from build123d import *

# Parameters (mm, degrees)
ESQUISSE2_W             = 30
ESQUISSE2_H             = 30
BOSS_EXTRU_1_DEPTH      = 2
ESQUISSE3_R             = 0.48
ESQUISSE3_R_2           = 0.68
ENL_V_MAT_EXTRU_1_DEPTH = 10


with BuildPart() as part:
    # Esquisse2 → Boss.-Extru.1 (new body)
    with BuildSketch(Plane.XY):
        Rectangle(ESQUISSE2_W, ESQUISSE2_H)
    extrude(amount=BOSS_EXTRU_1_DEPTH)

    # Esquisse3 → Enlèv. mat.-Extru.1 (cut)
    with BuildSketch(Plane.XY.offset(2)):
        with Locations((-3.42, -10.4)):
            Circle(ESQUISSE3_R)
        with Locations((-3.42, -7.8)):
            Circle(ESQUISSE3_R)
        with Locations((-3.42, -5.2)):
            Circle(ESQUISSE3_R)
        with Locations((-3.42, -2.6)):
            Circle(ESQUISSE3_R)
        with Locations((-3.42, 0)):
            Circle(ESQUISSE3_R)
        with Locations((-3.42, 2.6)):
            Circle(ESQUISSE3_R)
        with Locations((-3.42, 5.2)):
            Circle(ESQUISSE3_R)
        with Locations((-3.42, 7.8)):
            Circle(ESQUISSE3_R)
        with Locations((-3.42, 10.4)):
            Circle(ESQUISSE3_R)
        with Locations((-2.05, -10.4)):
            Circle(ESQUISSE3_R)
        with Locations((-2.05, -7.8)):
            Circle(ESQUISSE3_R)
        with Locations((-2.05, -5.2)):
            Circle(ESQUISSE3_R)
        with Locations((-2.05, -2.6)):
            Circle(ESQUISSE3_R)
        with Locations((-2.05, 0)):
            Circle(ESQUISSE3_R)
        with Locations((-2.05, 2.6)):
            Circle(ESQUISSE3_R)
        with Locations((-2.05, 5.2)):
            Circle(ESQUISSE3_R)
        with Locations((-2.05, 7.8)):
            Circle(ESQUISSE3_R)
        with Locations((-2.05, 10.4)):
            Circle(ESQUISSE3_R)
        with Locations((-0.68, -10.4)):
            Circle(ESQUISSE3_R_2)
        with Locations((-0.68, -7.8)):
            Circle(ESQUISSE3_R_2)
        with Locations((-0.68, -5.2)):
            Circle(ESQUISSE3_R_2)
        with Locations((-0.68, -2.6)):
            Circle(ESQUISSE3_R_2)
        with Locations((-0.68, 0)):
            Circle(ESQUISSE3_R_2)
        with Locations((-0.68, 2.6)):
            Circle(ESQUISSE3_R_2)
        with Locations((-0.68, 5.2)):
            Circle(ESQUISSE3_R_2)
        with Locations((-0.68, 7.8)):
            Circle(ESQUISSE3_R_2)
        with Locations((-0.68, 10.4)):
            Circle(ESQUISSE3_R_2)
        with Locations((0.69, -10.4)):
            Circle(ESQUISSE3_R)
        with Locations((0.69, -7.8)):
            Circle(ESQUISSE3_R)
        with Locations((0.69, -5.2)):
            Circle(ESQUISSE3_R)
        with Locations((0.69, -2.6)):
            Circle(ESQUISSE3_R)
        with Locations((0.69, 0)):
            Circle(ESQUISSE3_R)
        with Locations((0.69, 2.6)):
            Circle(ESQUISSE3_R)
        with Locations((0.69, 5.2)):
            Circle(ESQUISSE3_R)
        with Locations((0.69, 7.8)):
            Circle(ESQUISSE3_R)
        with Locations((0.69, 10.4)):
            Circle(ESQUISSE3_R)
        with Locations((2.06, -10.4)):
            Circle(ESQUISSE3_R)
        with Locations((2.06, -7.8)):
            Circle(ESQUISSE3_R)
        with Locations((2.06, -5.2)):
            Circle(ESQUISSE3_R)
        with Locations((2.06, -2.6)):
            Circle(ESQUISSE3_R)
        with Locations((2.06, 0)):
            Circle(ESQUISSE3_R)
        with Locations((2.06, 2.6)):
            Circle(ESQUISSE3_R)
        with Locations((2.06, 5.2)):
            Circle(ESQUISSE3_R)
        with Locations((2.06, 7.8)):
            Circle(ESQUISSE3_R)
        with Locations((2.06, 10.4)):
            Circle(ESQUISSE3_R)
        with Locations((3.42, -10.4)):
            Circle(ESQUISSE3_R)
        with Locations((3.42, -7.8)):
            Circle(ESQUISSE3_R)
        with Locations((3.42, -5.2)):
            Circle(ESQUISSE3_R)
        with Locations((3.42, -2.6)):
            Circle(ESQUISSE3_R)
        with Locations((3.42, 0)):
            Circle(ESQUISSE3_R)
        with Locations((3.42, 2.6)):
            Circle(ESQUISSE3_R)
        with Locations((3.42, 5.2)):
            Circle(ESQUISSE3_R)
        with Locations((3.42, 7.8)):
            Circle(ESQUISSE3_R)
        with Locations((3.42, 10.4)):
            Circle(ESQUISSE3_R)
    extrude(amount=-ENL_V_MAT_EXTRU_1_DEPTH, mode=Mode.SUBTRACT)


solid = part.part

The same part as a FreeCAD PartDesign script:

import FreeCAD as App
import Part
import Sketcher
from FreeCAD import Vector
Q = App.Units.Quantity


def add_polygon(sketch, points):
    """Adds a closed chain of lines whose ends are joined by coincident constraints."""
    first, n = sketch.GeometryCount, len(points)
    for a, b in zip(points, points[1:] + points[:1]):
        sketch.addGeometry(Part.LineSegment(App.Vector(*a, 0), App.Vector(*b, 0)), False)
    for i in range(n):
        sketch.addConstraint(Sketcher.Constraint("Coincident", first + i, 2, first + (i + 1) % n, 1))

doc = App.newDocument("Part")
body = doc.addObject("PartDesign::Body", "Body")

sketch1 = body.newObject("Sketcher::SketchObject", "Sketch")
sketch1.AttachmentSupport = (doc.getObject("XY_Plane"), [""])
sketch1.MapMode = "FlatFace"
add_polygon(sketch1, [(-15, 15), (-15, -15), (15, -15), (15, 15)])
sketch1.addConstraint([
    Sketcher.Constraint("Vertical", 0),
    Sketcher.Constraint("Horizontal", 1),
    Sketcher.Constraint("Vertical", 2),
    Sketcher.Constraint("Horizontal", 3),
    Sketcher.Constraint("Symmetric", 0, 2, 2, 2, -1, 1),
    Sketcher.Constraint("Equal", 3, 0),
    Sketcher.Constraint("DistanceX", 1, 1, 1, 2, Q("30 mm")),
])
pad1 = body.newObject("PartDesign::Pad", "Pad")
pad1.Profile = sketch1
pad1.Length = 2

sketch2 = body.newObject("Sketcher::SketchObject", "Sketch001")
sketch2.AttachmentSupport = (doc.getObject("XY_Plane"), [""])
sketch2.MapMode = "FlatFace"
sketch2.AttachmentOffset = App.Placement(Vector(0, 0, 2), App.Rotation())
sketch2.addGeometry([
    Part.Circle(Vector(-3.42, -10.4, 0), Vector(0, 0, 1), 0.48),
    Part.Circle(Vector(-3.42, -7.8, 0), Vector(0, 0, 1), 0.48),
    Part.Circle(Vector(-3.42, -5.2, 0), Vector(0, 0, 1), 0.48),
    Part.Circle(Vector(-3.42, -2.6, 0), Vector(0, 0, 1), 0.48),
    Part.Circle(Vector(-3.42, 0, 0), Vector(0, 0, 1), 0.48),
    Part.Circle(Vector(-3.42, 2.6, 0), Vector(0, 0, 1), 0.48),
    Part.Circle(Vector(-3.42, 5.2, 0), Vector(0, 0, 1), 0.48),
    Part.Circle(Vector(-3.42, 7.8, 0), Vector(0, 0, 1), 0.48),
    Part.Circle(Vector(-3.42, 10.4, 0), Vector(0, 0, 1), 0.48),
    Part.Circle(Vector(-2.05, -10.4, 0), Vector(0, 0, 1), 0.48),
    Part.Circle(Vector(-2.05, -7.8, 0), Vector(0, 0, 1), 0.48),
    Part.Circle(Vector(-2.05, -5.2, 0), Vector(0, 0, 1), 0.48),
    Part.Circle(Vector(-2.05, -2.6, 0), Vector(0, 0, 1), 0.48),
    Part.Circle(Vector(-2.05, 0, 0), Vector(0, 0, 1), 0.48),
    Part.Circle(Vector(-2.05, 2.6, 0), Vector(0, 0, 1), 0.48),
    Part.Circle(Vector(-2.05, 5.2, 0), Vector(0, 0, 1), 0.48),
    Part.Circle(Vector(-2.05, 7.8, 0), Vector(0, 0, 1), 0.48),
    Part.Circle(Vector(-2.05, 10.4, 0), Vector(0, 0, 1), 0.48),
    Part.Circle(Vector(-0.68, -10.4, 0), Vector(0, 0, 1), 0.68),
    Part.Circle(Vector(-0.68, -7.8, 0), Vector(0, 0, 1), 0.68),
    Part.Circle(Vector(-0.68, -5.2, 0), Vector(0, 0, 1), 0.68),
    Part.Circle(Vector(-0.68, -2.6, 0), Vector(0, 0, 1), 0.68),
    Part.Circle(Vector(-0.68, 0, 0), Vector(0, 0, 1), 0.68),
    Part.Circle(Vector(-0.68, 2.6, 0), Vector(0, 0, 1), 0.68),
    Part.Circle(Vector(-0.68, 5.2, 0), Vector(0, 0, 1), 0.68),
    Part.Circle(Vector(-0.68, 7.8, 0), Vector(0, 0, 1), 0.68),
    Part.Circle(Vector(-0.68, 10.4, 0), Vector(0, 0, 1), 0.68),
    Part.Circle(Vector(0.69, -10.4, 0), Vector(0, 0, 1), 0.48),
    Part.Circle(Vector(0.69, -7.8, 0), Vector(0, 0, 1), 0.48),
    Part.Circle(Vector(0.69, -5.2, 0), Vector(0, 0, 1), 0.48),
    Part.Circle(Vector(0.69, -2.6, 0), Vector(0, 0, 1), 0.48),
    Part.Circle(Vector(0.69, 0, 0), Vector(0, 0, 1), 0.48),
    Part.Circle(Vector(0.69, 2.6, 0), Vector(0, 0, 1), 0.48),
    Part.Circle(Vector(0.69, 5.2, 0), Vector(0, 0, 1), 0.48),
    Part.Circle(Vector(0.69, 7.8, 0), Vector(0, 0, 1), 0.48),
    Part.Circle(Vector(0.69, 10.4, 0), Vector(0, 0, 1), 0.48),
    Part.Circle(Vector(2.06, -10.4, 0), Vector(0, 0, 1), 0.48),
    Part.Circle(Vector(2.06, -7.8, 0), Vector(0, 0, 1), 0.48),
    Part.Circle(Vector(2.06, -5.2, 0), Vector(0, 0, 1), 0.48),
    Part.Circle(Vector(2.06, -2.6, 0), Vector(0, 0, 1), 0.48),
    Part.Circle(Vector(2.06, 0, 0), Vector(0, 0, 1), 0.48),
    Part.Circle(Vector(2.06, 2.6, 0), Vector(0, 0, 1), 0.48),
    Part.Circle(Vector(2.06, 5.2, 0), Vector(0, 0, 1), 0.48),
    Part.Circle(Vector(2.06, 7.8, 0), Vector(0, 0, 1), 0.48),
    Part.Circle(Vector(2.06, 10.4, 0), Vector(0, 0, 1), 0.48),
    Part.Circle(Vector(3.42, -10.4, 0), Vector(0, 0, 1), 0.48),
    Part.Circle(Vector(3.42, -7.8, 0), Vector(0, 0, 1), 0.48),
    Part.Circle(Vector(3.42, -5.2, 0), Vector(0, 0, 1), 0.48),
    Part.Circle(Vector(3.42, -2.6, 0), Vector(0, 0, 1), 0.48),
    Part.Circle(Vector(3.42, 0, 0), Vector(0, 0, 1), 0.48),
    Part.Circle(Vector(3.42, 2.6, 0), Vector(0, 0, 1), 0.48),
    Part.Circle(Vector(3.42, 5.2, 0), Vector(0, 0, 1), 0.48),
    Part.Circle(Vector(3.42, 7.8, 0), Vector(0, 0, 1), 0.48),
    Part.Circle(Vector(3.42, 10.4, 0), Vector(0, 0, 1), 0.48),
], False)
sketch2.addConstraint([
    Sketcher.Constraint("Equal", 0, 1),
    Sketcher.Constraint("Equal", 1, 2),
    Sketcher.Constraint("Equal", 2, 3),
    Sketcher.Constraint("Equal", 3, 4),
    Sketcher.Constraint("Equal", 4, 5),
    Sketcher.Constraint("Equal", 5, 6),
    Sketcher.Constraint("Equal", 6, 7),
    Sketcher.Constraint("Equal", 7, 8),
    Sketcher.Constraint("Equal", 8, 9),
    Sketcher.Constraint("Equal", 9, 10),
    Sketcher.Constraint("Equal", 10, 11),
    Sketcher.Constraint("Equal", 11, 12),
    Sketcher.Constraint("Equal", 12, 13),
    Sketcher.Constraint("Equal", 13, 14),
    Sketcher.Constraint("Equal", 14, 15),
    Sketcher.Constraint("Equal", 15, 16),
    Sketcher.Constraint("Equal", 16, 17),
    Sketcher.Constraint("Equal", 18, 19),
    Sketcher.Constraint("Equal", 19, 20),
    Sketcher.Constraint("Equal", 20, 21),
    Sketcher.Constraint("Equal", 21, 22),
    Sketcher.Constraint("Equal", 22, 23),
    Sketcher.Constraint("Equal", 23, 24),
    Sketcher.Constraint("Equal", 24, 25),
    Sketcher.Constraint("Equal", 25, 26),
    Sketcher.Constraint("Equal", 17, 27),
    Sketcher.Constraint("Equal", 27, 28),
    Sketcher.Constraint("Equal", 28, 29),
    Sketcher.Constraint("Equal", 29, 30),
    Sketcher.Constraint("Equal", 30, 31),
    Sketcher.Constraint("Equal", 31, 32),
    Sketcher.Constraint("Equal", 32, 33),
    Sketcher.Constraint("Equal", 33, 34),
    Sketcher.Constraint("Equal", 34, 35),
    Sketcher.Constraint("Equal", 35, 36),
    Sketcher.Constraint("Equal", 36, 37),
    Sketcher.Constraint("Equal", 37, 38),
    Sketcher.Constraint("Equal", 38, 39),
    Sketcher.Constraint("Equal", 39, 40),
    Sketcher.Constraint("Equal", 40, 41),
    Sketcher.Constraint("Equal", 41, 42),
    Sketcher.Constraint("Equal", 42, 43),
    Sketcher.Constraint("Equal", 43, 44),
    Sketcher.Constraint("Equal", 44, 45),
    Sketcher.Constraint("Equal", 45, 46),
    Sketcher.Constraint("Equal", 46, 47),
    Sketcher.Constraint("Equal", 47, 48),
    Sketcher.Constraint("Equal", 48, 49),
    Sketcher.Constraint("Equal", 49, 50),
    Sketcher.Constraint("Equal", 50, 51),
    Sketcher.Constraint("Equal", 51, 52),
    Sketcher.Constraint("Equal", 52, 53),
    Sketcher.Constraint("Symmetric", 8, 3, 45, 3, -1, 1),
    Sketcher.Constraint("Symmetric", 7, 3, 46, 3, -1, 1),
    Sketcher.Constraint("Symmetric", 6, 3, 47, 3, -1, 1),
    Sketcher.Constraint("Symmetric", 5, 3, 48, 3, -1, 1),
    Sketcher.Constraint("Symmetric", 4, 3, 49, 3, -1, 1),
    Sketcher.Constraint("Symmetric", 3, 3, 50, 3, -1, 1),
    Sketcher.Constraint("Symmetric", 2, 3, 51, 3, -1, 1),
    Sketcher.Constraint("Symmetric", 1, 3, 52, 3, -1, 1),
    Sketcher.Constraint("Symmetric", 0, 3, 53, 3, -1, 1),
    Sketcher.Constraint("Symmetric", 0, 3, 45, 3, -2),
    Sketcher.Constraint("Symmetric", 1, 3, 46, 3, -2),
    Sketcher.Constraint("Symmetric", 2, 3, 47, 3, -2),
    Sketcher.Constraint("Symmetric", 3, 3, 48, 3, -2),
    Sketcher.Constraint("Symmetric", 12, 3, 14, 3, -1),
    Sketcher.Constraint("Symmetric", 11, 3, 15, 3, -1),
    Sketcher.Constraint("Symmetric", 10, 3, 16, 3, -1),
    Sketcher.Constraint("Symmetric", 9, 3, 17, 3, -1),
    Sketcher.Constraint("Symmetric", 21, 3, 23, 3, -1),
    Sketcher.Constraint("Symmetric", 20, 3, 24, 3, -1),
    Sketcher.Constraint("Symmetric", 19, 3, 25, 3, -1),
    Sketcher.Constraint("Symmetric", 18, 3, 26, 3, -1),
    Sketcher.Constraint("Symmetric", 30, 3, 32, 3, -1),
    Sketcher.Constraint("Symmetric", 29, 3, 33, 3, -1),
    Sketcher.Constraint("Symmetric", 28, 3, 34, 3, -1),
    Sketcher.Constraint("Symmetric", 27, 3, 35, 3, -1),
    Sketcher.Constraint("Symmetric", 39, 3, 41, 3, -1),
    Sketcher.Constraint("Symmetric", 38, 3, 42, 3, -1),
    Sketcher.Constraint("Symmetric", 37, 3, 43, 3, -1),
    Sketcher.Constraint("Symmetric", 36, 3, 44, 3, -1),
    Sketcher.Constraint("PointOnObject", 4, 3, -1),
    Sketcher.Constraint("PointOnObject", 13, 3, -1),
    Sketcher.Constraint("PointOnObject", 22, 3, -1),
    Sketcher.Constraint("PointOnObject", 31, 3, -1),
    Sketcher.Constraint("PointOnObject", 40, 3, -1),
    Sketcher.Constraint("Horizontal", 0, 3, 9, 3),
    Sketcher.Constraint("Horizontal", 1, 3, 10, 3),
    Sketcher.Constraint("Horizontal", 2, 3, 11, 3),
    Sketcher.Constraint("Horizontal", 3, 3, 12, 3),
    Sketcher.Constraint("Horizontal", 9, 3, 18, 3),
    Sketcher.Constraint("Horizontal", 10, 3, 19, 3),
    Sketcher.Constraint("Horizontal", 11, 3, 20, 3),
    Sketcher.Constraint("Horizontal", 12, 3, 21, 3),
    Sketcher.Constraint("Horizontal", 18, 3, 27, 3),
    Sketcher.Constraint("Horizontal", 19, 3, 28, 3),
    Sketcher.Constraint("Horizontal", 20, 3, 29, 3),
    Sketcher.Constraint("Horizontal", 21, 3, 30, 3),
    Sketcher.Constraint("Horizontal", 27, 3, 36, 3),
    Sketcher.Constraint("Horizontal", 28, 3, 37, 3),
    Sketcher.Constraint("Horizontal", 29, 3, 38, 3),
    Sketcher.Constraint("Horizontal", 30, 3, 39, 3),
    Sketcher.Constraint("Vertical", 0, 3, 1, 3),
    Sketcher.Constraint("Vertical", 1, 3, 2, 3),
    Sketcher.Constraint("Vertical", 2, 3, 3, 3),
    Sketcher.Constraint("Vertical", 3, 3, 4, 3),
    Sketcher.Constraint("Vertical", 9, 3, 10, 3),
    Sketcher.Constraint("Vertical", 10, 3, 11, 3),
    Sketcher.Constraint("Vertical", 11, 3, 12, 3),
    Sketcher.Constraint("Vertical", 12, 3, 13, 3),
    Sketcher.Constraint("Vertical", 18, 3, 19, 3),
    Sketcher.Constraint("Vertical", 19, 3, 20, 3),
    Sketcher.Constraint("Vertical", 20, 3, 21, 3),
    Sketcher.Constraint("Vertical", 21, 3, 22, 3),
    Sketcher.Constraint("Vertical", 27, 3, 28, 3),
    Sketcher.Constraint("Vertical", 28, 3, 29, 3),
    Sketcher.Constraint("Vertical", 29, 3, 30, 3),
    Sketcher.Constraint("Vertical", 30, 3, 31, 3),
    Sketcher.Constraint("Vertical", 36, 3, 37, 3),
    Sketcher.Constraint("Vertical", 37, 3, 38, 3),
    Sketcher.Constraint("Vertical", 38, 3, 39, 3),
    Sketcher.Constraint("Vertical", 39, 3, 40, 3),
    Sketcher.Constraint("Diameter", 0, Q("0.96 mm")),
    Sketcher.Constraint("Diameter", 18, Q("1.36 mm")),
    Sketcher.Constraint("DistanceY", 0, 3, 5, 3, Q("13 mm")),
    Sketcher.Constraint("DistanceY", 1, 3, 6, 3, Q("13 mm")),
    Sketcher.Constraint("DistanceY", 0, 3, -1, 1, Q("10.4 mm")),
    Sketcher.Constraint("DistanceY", 1, 3, -1, 1, Q("7.8 mm")),
    Sketcher.Constraint("DistanceX", 18, 3, 45, 3, Q("4.1 mm")),
    Sketcher.Constraint("DistanceX", 0, 3, -1, 1, Q("3.42 mm")),
    Sketcher.Constraint("DistanceX", 9, 3, -1, 1, Q("2.05 mm")),
    Sketcher.Constraint("DistanceX", -1, 1, 27, 3, Q("0.69 mm")),
    Sketcher.Constraint("DistanceX", -1, 1, 36, 3, Q("2.06 mm")),
])
pocket1 = body.newObject("PartDesign::Pocket", "Pocket")
pocket1.Profile = sketch2
pocket1.Length = 10

doc.recompute()
